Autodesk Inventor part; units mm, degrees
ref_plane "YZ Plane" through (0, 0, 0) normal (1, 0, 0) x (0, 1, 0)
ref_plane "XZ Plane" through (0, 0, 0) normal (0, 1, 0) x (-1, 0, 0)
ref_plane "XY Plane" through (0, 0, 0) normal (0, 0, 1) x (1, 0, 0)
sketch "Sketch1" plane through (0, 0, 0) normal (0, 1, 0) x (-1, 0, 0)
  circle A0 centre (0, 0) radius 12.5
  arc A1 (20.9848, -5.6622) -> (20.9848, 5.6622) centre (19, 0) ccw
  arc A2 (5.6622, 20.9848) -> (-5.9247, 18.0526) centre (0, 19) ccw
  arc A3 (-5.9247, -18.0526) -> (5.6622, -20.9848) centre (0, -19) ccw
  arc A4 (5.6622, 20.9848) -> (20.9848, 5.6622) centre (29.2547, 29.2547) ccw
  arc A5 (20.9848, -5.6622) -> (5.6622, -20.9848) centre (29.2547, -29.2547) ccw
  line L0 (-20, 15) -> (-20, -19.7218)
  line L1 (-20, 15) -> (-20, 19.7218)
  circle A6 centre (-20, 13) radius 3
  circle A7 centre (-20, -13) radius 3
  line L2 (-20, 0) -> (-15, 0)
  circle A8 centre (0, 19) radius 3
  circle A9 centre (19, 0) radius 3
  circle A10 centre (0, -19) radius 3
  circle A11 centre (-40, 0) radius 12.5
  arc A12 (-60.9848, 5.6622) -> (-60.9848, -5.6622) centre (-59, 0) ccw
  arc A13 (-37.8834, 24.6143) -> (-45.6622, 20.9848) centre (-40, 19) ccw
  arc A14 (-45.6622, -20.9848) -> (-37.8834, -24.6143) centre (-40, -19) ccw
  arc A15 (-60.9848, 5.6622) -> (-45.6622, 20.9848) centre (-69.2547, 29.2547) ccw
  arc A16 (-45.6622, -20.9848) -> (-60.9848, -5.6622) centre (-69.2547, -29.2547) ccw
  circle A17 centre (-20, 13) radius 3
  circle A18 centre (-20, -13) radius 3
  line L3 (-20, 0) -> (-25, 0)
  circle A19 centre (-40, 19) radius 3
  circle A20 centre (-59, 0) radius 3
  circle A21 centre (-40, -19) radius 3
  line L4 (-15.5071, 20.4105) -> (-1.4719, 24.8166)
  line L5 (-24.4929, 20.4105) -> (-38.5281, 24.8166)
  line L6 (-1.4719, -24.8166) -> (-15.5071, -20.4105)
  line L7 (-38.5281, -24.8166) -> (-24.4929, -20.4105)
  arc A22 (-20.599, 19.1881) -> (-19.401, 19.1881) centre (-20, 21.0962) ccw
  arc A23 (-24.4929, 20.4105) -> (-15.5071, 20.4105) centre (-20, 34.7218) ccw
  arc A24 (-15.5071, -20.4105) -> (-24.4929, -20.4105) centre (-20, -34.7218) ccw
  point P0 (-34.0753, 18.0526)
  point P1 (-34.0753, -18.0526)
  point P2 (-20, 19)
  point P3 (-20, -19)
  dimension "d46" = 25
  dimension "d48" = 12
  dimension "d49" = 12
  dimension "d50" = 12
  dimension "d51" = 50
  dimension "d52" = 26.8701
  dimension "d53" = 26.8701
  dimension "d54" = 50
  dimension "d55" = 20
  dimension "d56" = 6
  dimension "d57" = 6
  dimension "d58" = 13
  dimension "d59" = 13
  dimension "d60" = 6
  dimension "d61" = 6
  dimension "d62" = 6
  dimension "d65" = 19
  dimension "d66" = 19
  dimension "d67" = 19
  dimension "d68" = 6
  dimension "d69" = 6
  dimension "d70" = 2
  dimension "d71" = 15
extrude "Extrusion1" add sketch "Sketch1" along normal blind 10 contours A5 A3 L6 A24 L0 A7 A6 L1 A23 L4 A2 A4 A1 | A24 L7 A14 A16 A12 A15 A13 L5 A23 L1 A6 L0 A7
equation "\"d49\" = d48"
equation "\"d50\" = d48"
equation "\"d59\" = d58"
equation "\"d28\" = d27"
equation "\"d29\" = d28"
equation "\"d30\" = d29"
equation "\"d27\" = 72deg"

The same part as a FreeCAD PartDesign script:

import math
import FreeCAD as App
import Part
import Sketcher

V = App.Vector
Q = App.Units.Quantity

doc = App.newDocument("Part")
params = doc.addObject("Spreadsheet::Sheet", "Params")
for row, (alias, value) in enumerate([
    ("sketch1_diameter", "6 mm"),
    ("sketch1_diameter2", "25 mm"),
    ("sketch1_radius", "25 mm"),
    ("sketch1_radius2", "6 mm"),
    ("sketch1_radius3", "15 mm"),
    ("pad1_length", "10 mm"),
], start=1):
    params.set(f"A{row}", alias)
    params.set(f"B{row}", "=" + value)
    params.setAlias(f"B{row}", alias)

body = doc.addObject("PartDesign::Body", "Body")

# Sketch on XZ plane
sketch1 = body.newObject("Sketcher::SketchObject", "Sketch")
sketch1.AttachmentSupport = (doc.getObject("XZ_Plane"), [""])
sketch1.MapMode = "FlatFace"
sketch1.addGeometry(Part.ArcOfCircle(Part.Circle(V(-29.3, -29.3, 0), V(0, 0, 1), 25), math.radians(19), math.radians(71)), False)
sketch1.addGeometry(Part.ArcOfCircle(Part.Circle(V(-19, 0, 0), V(0, 0, 1), 6), math.radians(109), math.radians(251)), False)
sketch1.addGeometry(Part.ArcOfCircle(Part.Circle(V(-29.3, 29.3, 0), V(0, 0, 1), 25), math.radians(-71), math.radians(-19)), False)
sketch1.addGeometry(Part.ArcOfCircle(Part.Circle(V(0, 19, 0), V(0, 0, 1), 6), math.radians(76), math.radians(161)), False)
sketch1.addGeometry(Part.LineSegment(V(1.5, 24.8, 0), V(15.5, 20.4, 0)), False)
sketch1.addGeometry(Part.ArcOfCircle(Part.Circle(V(20, 34.7, 0), V(0, 0, 1), 15), math.radians(-107), math.radians(-73)), False)
sketch1.addGeometry(Part.LineSegment(V(24.5, 20.4, 0), V(38.5, 24.8, 0)), False)
sketch1.addGeometry(Part.ArcOfCircle(Part.Circle(V(40, 19, 0), V(0, 0, 1), 6), math.radians(19), math.radians(104)), False)
sketch1.addGeometry(Part.ArcOfCircle(Part.Circle(V(69.3, 29.3, 0), V(0, 0, 1), 25), math.radians(-161), math.radians(-109)), False)
sketch1.addGeometry(Part.ArcOfCircle(Part.Circle(V(59, 0, 0), V(0, 0, 1), 6), math.radians(-71), math.radians(71)), False)
sketch1.addGeometry(Part.ArcOfCircle(Part.Circle(V(69.3, -29.3, 0), V(0, 0, 1), 25), math.radians(109), math.radians(161)), False)
sketch1.addGeometry(Part.ArcOfCircle(Part.Circle(V(40, -19, 0), V(0, 0, 1), 6), math.radians(-104), math.radians(-19)), False)
sketch1.addGeometry(Part.LineSegment(V(38.5, -24.8, 0), V(24.5, -20.4, 0)), False)
sketch1.addGeometry(Part.ArcOfCircle(Part.Circle(V(20, -34.7, 0), V(0, 0, 1), 15), math.radians(73), math.radians(107)), False)
sketch1.addGeometry(Part.LineSegment(V(15.5, -20.4, 0), V(1.5, -24.8, 0)), False)
sketch1.addGeometry(Part.ArcOfCircle(Part.Circle(V(0, -19, 0), V(0, 0, 1), 6), math.radians(-161), math.radians(-76)), False)
sketch1.addGeometry(Part.Circle(V(20, -13, 0), V(0, 0, 1), 3), False)
sketch1.addGeometry(Part.Circle(V(20, 13, 0), V(0, 0, 1), 3), False)
sketch1.addGeometry(Part.Circle(V(0, -19, 0), V(0, 0, 1), 3), False)
sketch1.addGeometry(Part.Circle(V(0, 0, 0), V(0, 0, 1), 12.5), False)
sketch1.addGeometry(Part.Circle(V(-19, 0, 0), V(0, 0, 1), 3), False)
sketch1.addGeometry(Part.Circle(V(0, 19, 0), V(0, 0, 1), 3), False)
sketch1.addGeometry(Part.Circle(V(40, 19, 0), V(0, 0, 1), 3), False)
sketch1.addGeometry(Part.Circle(V(40, -19, 0), V(0, 0, 1), 3), False)
sketch1.addGeometry(Part.Circle(V(59, 0, 0), V(0, 0, 1), 3), False)
sketch1.addGeometry(Part.Circle(V(40, 0, 0), V(0, 0, 1), 12.5), False)
sketch1.addConstraint(Sketcher.Constraint("Tangent", 0, 2, 1, 2))
sketch1.addConstraint(Sketcher.Constraint("Tangent", 1, 1, 2, 1))
sketch1.addConstraint(Sketcher.Constraint("Tangent", 2, 2, 3, 2))
sketch1.addConstraint(Sketcher.Constraint("Coincident", 3, 1, 4, 1))
sketch1.addConstraint(Sketcher.Constraint("Tangent", 4, 2, 5, 1))
sketch1.addConstraint(Sketcher.Constraint("Tangent", 5, 2, 6, 1))
sketch1.addConstraint(Sketcher.Constraint("Coincident", 6, 2, 7, 2))
sketch1.addConstraint(Sketcher.Constraint("Tangent", 7, 1, 8, 1))
sketch1.addConstraint(Sketcher.Constraint("Tangent", 8, 2, 9, 2))
sketch1.addConstraint(Sketcher.Constraint("Tangent", 9, 1, 10, 1))
sketch1.addConstraint(Sketcher.Constraint("Tangent", 10, 2, 11, 2))
sketch1.addConstraint(Sketcher.Constraint("Coincident", 11, 1, 12, 1))
sketch1.addConstraint(Sketcher.Constraint("Tangent", 12, 2, 13, 1))
sketch1.addConstraint(Sketcher.Constraint("Tangent", 13, 2, 14, 1))
sketch1.addConstraint(Sketcher.Constraint("Coincident", 14, 2, 15, 2))
sketch1.addConstraint(Sketcher.Constraint("Tangent", 15, 1, 0, 1))
sketch1.addConstraint(Sketcher.Constraint("Coincident", 19, 3, -1, 1))
sketch1.addConstraint(Sketcher.Constraint("Coincident", 18, 3, 15, 3))
sketch1.addConstraint(Sketcher.Constraint("Coincident", 20, 3, 1, 3))
sketch1.addConstraint(Sketcher.Constraint("Coincident", 21, 3, 3, 3))
sketch1.addConstraint(Sketcher.Constraint("Coincident", 22, 3, 7, 3))
sketch1.addConstraint(Sketcher.Constraint("Coincident", 23, 3, 11, 3))
sketch1.addConstraint(Sketcher.Constraint("Coincident", 24, 3, 9, 3))
sketch1.addConstraint(Sketcher.Constraint("Equal", 0, 2))
sketch1.addConstraint(Sketcher.Constraint("Equal", 1, 3))
sketch1.addConstraint(Sketcher.Constraint("Equal", 3, 7))
sketch1.addConstraint(Sketcher.Constraint("Equal", 2, 8))
sketch1.addConstraint(Sketcher.Constraint("Equal", 7, 9))
sketch1.addConstraint(Sketcher.Constraint("Equal", 8, 10))
sketch1.addConstraint(Sketcher.Constraint("Equal", 9, 11))
sketch1.addConstraint(Sketcher.Constraint("Equal", 5, 13))
sketch1.addConstraint(Sketcher.Constraint("Equal", 11, 15))
sketch1.addConstraint(Sketcher.Constraint("Equal", 16, 17))
sketch1.addConstraint(Sketcher.Constraint("Equal", 17, 18))
sketch1.addConstraint(Sketcher.Constraint("Equal", 18, 20))
sketch1.addConstraint(Sketcher.Constraint("Equal", 20, 21))
sketch1.addConstraint(Sketcher.Constraint("Equal", 21, 22))
sketch1.addConstraint(Sketcher.Constraint("Equal", 22, 23))
sketch1.addConstraint(Sketcher.Constraint("Equal", 23, 24))
sketch1.addConstraint(Sketcher.Constraint("Equal", 19, 25))
sketch1.addConstraint(Sketcher.Constraint("Symmetric", 3, 3, 15, 3, -1, 1))
sketch1.addConstraint(Sketcher.Constraint("Symmetric", 0, 3, 2, 3, -1))
sketch1.addConstraint(Sketcher.Constraint("Symmetric", 8, 3, 10, 3, -1))
sketch1.addConstraint(Sketcher.Constraint("Symmetric", 5, 3, 13, 3, -1))
sketch1.addConstraint(Sketcher.Constraint("Symmetric", 16, 3, 17, 3, -1))
sketch1.addConstraint(Sketcher.Constraint("Symmetric", 6, 2, 11, 1, -1))
sketch1.addConstraint(Sketcher.Constraint("PointOnObject", 25, 3, -1))
sketch1.addConstraint(Sketcher.Constraint("Parallel", 4, 12))
sketch1.addConstraint(Sketcher.Constraint("Parallel", 6, 14))
sketch1.addConstraint(Sketcher.Constraint("Horizontal", 3, 3, 7, 3))
sketch1.addConstraint(Sketcher.Constraint("Horizontal", 2, 3, 8, 3))
sketch1.addConstraint(Sketcher.Constraint("Horizontal", 3, 1, 6, 2))
sketch1.addConstraint(Sketcher.Constraint("Vertical", 13, 3, 16, 3))
sketch1.addConstraint(Sketcher.Constraint("Vertical", 23, 3, 25, 3))
sketch1.addConstraint(Sketcher.Constraint("Diameter", 16, Q("6 mm")))
sketch1.addConstraint(Sketcher.Constraint("Diameter", 19, Q("25 mm")))
sketch1.addConstraint(Sketcher.Constraint("Radius", 0, Q("25 mm")))
sketch1.addConstraint(Sketcher.Constraint("Radius", 1, Q("6 mm")))
sketch1.addConstraint(Sketcher.Constraint("Radius", 5, Q("15 mm")))
sketch1.addConstraint(Sketcher.Constraint("DistanceX", 1, 3, -1, 1, Q("19 mm")))
sketch1.addConstraint(Sketcher.Constraint("DistanceY", -1, 1, 3, 3, Q("19 mm")))
sketch1.addConstraint(Sketcher.Constraint("DistanceX", -1, 1, 5, 3, Q("20 mm")))
sketch1.addConstraint(Sketcher.Constraint("DistanceY", 16, 3, -1, 1, Q("13 mm")))
sketch1.addConstraint(Sketcher.Constraint("DistanceX", -1, 1, 3, 1, Q("1.472 mm")))
sketch1.addConstraint(Sketcher.Constraint("DistanceX", -1, 1, 4, 2, Q("15.507 mm")))
sketch1.setExpression("Constraints[54]", "Params.sketch1_diameter")
sketch1.setExpression("Constraints[55]", "Params.sketch1_diameter2")
sketch1.setExpression("Constraints[56]", "Params.sketch1_radius")
sketch1.setExpression("Constraints[57]", "Params.sketch1_radius2")
sketch1.setExpression("Constraints[58]", "Params.sketch1_radius3")
pad1 = body.newObject("PartDesign::Pad", "Pad")
pad1.Profile = sketch1
pad1.setExpression("Length", "Params.pad1_length")
pad1.Reversed = True

doc.recompute()
